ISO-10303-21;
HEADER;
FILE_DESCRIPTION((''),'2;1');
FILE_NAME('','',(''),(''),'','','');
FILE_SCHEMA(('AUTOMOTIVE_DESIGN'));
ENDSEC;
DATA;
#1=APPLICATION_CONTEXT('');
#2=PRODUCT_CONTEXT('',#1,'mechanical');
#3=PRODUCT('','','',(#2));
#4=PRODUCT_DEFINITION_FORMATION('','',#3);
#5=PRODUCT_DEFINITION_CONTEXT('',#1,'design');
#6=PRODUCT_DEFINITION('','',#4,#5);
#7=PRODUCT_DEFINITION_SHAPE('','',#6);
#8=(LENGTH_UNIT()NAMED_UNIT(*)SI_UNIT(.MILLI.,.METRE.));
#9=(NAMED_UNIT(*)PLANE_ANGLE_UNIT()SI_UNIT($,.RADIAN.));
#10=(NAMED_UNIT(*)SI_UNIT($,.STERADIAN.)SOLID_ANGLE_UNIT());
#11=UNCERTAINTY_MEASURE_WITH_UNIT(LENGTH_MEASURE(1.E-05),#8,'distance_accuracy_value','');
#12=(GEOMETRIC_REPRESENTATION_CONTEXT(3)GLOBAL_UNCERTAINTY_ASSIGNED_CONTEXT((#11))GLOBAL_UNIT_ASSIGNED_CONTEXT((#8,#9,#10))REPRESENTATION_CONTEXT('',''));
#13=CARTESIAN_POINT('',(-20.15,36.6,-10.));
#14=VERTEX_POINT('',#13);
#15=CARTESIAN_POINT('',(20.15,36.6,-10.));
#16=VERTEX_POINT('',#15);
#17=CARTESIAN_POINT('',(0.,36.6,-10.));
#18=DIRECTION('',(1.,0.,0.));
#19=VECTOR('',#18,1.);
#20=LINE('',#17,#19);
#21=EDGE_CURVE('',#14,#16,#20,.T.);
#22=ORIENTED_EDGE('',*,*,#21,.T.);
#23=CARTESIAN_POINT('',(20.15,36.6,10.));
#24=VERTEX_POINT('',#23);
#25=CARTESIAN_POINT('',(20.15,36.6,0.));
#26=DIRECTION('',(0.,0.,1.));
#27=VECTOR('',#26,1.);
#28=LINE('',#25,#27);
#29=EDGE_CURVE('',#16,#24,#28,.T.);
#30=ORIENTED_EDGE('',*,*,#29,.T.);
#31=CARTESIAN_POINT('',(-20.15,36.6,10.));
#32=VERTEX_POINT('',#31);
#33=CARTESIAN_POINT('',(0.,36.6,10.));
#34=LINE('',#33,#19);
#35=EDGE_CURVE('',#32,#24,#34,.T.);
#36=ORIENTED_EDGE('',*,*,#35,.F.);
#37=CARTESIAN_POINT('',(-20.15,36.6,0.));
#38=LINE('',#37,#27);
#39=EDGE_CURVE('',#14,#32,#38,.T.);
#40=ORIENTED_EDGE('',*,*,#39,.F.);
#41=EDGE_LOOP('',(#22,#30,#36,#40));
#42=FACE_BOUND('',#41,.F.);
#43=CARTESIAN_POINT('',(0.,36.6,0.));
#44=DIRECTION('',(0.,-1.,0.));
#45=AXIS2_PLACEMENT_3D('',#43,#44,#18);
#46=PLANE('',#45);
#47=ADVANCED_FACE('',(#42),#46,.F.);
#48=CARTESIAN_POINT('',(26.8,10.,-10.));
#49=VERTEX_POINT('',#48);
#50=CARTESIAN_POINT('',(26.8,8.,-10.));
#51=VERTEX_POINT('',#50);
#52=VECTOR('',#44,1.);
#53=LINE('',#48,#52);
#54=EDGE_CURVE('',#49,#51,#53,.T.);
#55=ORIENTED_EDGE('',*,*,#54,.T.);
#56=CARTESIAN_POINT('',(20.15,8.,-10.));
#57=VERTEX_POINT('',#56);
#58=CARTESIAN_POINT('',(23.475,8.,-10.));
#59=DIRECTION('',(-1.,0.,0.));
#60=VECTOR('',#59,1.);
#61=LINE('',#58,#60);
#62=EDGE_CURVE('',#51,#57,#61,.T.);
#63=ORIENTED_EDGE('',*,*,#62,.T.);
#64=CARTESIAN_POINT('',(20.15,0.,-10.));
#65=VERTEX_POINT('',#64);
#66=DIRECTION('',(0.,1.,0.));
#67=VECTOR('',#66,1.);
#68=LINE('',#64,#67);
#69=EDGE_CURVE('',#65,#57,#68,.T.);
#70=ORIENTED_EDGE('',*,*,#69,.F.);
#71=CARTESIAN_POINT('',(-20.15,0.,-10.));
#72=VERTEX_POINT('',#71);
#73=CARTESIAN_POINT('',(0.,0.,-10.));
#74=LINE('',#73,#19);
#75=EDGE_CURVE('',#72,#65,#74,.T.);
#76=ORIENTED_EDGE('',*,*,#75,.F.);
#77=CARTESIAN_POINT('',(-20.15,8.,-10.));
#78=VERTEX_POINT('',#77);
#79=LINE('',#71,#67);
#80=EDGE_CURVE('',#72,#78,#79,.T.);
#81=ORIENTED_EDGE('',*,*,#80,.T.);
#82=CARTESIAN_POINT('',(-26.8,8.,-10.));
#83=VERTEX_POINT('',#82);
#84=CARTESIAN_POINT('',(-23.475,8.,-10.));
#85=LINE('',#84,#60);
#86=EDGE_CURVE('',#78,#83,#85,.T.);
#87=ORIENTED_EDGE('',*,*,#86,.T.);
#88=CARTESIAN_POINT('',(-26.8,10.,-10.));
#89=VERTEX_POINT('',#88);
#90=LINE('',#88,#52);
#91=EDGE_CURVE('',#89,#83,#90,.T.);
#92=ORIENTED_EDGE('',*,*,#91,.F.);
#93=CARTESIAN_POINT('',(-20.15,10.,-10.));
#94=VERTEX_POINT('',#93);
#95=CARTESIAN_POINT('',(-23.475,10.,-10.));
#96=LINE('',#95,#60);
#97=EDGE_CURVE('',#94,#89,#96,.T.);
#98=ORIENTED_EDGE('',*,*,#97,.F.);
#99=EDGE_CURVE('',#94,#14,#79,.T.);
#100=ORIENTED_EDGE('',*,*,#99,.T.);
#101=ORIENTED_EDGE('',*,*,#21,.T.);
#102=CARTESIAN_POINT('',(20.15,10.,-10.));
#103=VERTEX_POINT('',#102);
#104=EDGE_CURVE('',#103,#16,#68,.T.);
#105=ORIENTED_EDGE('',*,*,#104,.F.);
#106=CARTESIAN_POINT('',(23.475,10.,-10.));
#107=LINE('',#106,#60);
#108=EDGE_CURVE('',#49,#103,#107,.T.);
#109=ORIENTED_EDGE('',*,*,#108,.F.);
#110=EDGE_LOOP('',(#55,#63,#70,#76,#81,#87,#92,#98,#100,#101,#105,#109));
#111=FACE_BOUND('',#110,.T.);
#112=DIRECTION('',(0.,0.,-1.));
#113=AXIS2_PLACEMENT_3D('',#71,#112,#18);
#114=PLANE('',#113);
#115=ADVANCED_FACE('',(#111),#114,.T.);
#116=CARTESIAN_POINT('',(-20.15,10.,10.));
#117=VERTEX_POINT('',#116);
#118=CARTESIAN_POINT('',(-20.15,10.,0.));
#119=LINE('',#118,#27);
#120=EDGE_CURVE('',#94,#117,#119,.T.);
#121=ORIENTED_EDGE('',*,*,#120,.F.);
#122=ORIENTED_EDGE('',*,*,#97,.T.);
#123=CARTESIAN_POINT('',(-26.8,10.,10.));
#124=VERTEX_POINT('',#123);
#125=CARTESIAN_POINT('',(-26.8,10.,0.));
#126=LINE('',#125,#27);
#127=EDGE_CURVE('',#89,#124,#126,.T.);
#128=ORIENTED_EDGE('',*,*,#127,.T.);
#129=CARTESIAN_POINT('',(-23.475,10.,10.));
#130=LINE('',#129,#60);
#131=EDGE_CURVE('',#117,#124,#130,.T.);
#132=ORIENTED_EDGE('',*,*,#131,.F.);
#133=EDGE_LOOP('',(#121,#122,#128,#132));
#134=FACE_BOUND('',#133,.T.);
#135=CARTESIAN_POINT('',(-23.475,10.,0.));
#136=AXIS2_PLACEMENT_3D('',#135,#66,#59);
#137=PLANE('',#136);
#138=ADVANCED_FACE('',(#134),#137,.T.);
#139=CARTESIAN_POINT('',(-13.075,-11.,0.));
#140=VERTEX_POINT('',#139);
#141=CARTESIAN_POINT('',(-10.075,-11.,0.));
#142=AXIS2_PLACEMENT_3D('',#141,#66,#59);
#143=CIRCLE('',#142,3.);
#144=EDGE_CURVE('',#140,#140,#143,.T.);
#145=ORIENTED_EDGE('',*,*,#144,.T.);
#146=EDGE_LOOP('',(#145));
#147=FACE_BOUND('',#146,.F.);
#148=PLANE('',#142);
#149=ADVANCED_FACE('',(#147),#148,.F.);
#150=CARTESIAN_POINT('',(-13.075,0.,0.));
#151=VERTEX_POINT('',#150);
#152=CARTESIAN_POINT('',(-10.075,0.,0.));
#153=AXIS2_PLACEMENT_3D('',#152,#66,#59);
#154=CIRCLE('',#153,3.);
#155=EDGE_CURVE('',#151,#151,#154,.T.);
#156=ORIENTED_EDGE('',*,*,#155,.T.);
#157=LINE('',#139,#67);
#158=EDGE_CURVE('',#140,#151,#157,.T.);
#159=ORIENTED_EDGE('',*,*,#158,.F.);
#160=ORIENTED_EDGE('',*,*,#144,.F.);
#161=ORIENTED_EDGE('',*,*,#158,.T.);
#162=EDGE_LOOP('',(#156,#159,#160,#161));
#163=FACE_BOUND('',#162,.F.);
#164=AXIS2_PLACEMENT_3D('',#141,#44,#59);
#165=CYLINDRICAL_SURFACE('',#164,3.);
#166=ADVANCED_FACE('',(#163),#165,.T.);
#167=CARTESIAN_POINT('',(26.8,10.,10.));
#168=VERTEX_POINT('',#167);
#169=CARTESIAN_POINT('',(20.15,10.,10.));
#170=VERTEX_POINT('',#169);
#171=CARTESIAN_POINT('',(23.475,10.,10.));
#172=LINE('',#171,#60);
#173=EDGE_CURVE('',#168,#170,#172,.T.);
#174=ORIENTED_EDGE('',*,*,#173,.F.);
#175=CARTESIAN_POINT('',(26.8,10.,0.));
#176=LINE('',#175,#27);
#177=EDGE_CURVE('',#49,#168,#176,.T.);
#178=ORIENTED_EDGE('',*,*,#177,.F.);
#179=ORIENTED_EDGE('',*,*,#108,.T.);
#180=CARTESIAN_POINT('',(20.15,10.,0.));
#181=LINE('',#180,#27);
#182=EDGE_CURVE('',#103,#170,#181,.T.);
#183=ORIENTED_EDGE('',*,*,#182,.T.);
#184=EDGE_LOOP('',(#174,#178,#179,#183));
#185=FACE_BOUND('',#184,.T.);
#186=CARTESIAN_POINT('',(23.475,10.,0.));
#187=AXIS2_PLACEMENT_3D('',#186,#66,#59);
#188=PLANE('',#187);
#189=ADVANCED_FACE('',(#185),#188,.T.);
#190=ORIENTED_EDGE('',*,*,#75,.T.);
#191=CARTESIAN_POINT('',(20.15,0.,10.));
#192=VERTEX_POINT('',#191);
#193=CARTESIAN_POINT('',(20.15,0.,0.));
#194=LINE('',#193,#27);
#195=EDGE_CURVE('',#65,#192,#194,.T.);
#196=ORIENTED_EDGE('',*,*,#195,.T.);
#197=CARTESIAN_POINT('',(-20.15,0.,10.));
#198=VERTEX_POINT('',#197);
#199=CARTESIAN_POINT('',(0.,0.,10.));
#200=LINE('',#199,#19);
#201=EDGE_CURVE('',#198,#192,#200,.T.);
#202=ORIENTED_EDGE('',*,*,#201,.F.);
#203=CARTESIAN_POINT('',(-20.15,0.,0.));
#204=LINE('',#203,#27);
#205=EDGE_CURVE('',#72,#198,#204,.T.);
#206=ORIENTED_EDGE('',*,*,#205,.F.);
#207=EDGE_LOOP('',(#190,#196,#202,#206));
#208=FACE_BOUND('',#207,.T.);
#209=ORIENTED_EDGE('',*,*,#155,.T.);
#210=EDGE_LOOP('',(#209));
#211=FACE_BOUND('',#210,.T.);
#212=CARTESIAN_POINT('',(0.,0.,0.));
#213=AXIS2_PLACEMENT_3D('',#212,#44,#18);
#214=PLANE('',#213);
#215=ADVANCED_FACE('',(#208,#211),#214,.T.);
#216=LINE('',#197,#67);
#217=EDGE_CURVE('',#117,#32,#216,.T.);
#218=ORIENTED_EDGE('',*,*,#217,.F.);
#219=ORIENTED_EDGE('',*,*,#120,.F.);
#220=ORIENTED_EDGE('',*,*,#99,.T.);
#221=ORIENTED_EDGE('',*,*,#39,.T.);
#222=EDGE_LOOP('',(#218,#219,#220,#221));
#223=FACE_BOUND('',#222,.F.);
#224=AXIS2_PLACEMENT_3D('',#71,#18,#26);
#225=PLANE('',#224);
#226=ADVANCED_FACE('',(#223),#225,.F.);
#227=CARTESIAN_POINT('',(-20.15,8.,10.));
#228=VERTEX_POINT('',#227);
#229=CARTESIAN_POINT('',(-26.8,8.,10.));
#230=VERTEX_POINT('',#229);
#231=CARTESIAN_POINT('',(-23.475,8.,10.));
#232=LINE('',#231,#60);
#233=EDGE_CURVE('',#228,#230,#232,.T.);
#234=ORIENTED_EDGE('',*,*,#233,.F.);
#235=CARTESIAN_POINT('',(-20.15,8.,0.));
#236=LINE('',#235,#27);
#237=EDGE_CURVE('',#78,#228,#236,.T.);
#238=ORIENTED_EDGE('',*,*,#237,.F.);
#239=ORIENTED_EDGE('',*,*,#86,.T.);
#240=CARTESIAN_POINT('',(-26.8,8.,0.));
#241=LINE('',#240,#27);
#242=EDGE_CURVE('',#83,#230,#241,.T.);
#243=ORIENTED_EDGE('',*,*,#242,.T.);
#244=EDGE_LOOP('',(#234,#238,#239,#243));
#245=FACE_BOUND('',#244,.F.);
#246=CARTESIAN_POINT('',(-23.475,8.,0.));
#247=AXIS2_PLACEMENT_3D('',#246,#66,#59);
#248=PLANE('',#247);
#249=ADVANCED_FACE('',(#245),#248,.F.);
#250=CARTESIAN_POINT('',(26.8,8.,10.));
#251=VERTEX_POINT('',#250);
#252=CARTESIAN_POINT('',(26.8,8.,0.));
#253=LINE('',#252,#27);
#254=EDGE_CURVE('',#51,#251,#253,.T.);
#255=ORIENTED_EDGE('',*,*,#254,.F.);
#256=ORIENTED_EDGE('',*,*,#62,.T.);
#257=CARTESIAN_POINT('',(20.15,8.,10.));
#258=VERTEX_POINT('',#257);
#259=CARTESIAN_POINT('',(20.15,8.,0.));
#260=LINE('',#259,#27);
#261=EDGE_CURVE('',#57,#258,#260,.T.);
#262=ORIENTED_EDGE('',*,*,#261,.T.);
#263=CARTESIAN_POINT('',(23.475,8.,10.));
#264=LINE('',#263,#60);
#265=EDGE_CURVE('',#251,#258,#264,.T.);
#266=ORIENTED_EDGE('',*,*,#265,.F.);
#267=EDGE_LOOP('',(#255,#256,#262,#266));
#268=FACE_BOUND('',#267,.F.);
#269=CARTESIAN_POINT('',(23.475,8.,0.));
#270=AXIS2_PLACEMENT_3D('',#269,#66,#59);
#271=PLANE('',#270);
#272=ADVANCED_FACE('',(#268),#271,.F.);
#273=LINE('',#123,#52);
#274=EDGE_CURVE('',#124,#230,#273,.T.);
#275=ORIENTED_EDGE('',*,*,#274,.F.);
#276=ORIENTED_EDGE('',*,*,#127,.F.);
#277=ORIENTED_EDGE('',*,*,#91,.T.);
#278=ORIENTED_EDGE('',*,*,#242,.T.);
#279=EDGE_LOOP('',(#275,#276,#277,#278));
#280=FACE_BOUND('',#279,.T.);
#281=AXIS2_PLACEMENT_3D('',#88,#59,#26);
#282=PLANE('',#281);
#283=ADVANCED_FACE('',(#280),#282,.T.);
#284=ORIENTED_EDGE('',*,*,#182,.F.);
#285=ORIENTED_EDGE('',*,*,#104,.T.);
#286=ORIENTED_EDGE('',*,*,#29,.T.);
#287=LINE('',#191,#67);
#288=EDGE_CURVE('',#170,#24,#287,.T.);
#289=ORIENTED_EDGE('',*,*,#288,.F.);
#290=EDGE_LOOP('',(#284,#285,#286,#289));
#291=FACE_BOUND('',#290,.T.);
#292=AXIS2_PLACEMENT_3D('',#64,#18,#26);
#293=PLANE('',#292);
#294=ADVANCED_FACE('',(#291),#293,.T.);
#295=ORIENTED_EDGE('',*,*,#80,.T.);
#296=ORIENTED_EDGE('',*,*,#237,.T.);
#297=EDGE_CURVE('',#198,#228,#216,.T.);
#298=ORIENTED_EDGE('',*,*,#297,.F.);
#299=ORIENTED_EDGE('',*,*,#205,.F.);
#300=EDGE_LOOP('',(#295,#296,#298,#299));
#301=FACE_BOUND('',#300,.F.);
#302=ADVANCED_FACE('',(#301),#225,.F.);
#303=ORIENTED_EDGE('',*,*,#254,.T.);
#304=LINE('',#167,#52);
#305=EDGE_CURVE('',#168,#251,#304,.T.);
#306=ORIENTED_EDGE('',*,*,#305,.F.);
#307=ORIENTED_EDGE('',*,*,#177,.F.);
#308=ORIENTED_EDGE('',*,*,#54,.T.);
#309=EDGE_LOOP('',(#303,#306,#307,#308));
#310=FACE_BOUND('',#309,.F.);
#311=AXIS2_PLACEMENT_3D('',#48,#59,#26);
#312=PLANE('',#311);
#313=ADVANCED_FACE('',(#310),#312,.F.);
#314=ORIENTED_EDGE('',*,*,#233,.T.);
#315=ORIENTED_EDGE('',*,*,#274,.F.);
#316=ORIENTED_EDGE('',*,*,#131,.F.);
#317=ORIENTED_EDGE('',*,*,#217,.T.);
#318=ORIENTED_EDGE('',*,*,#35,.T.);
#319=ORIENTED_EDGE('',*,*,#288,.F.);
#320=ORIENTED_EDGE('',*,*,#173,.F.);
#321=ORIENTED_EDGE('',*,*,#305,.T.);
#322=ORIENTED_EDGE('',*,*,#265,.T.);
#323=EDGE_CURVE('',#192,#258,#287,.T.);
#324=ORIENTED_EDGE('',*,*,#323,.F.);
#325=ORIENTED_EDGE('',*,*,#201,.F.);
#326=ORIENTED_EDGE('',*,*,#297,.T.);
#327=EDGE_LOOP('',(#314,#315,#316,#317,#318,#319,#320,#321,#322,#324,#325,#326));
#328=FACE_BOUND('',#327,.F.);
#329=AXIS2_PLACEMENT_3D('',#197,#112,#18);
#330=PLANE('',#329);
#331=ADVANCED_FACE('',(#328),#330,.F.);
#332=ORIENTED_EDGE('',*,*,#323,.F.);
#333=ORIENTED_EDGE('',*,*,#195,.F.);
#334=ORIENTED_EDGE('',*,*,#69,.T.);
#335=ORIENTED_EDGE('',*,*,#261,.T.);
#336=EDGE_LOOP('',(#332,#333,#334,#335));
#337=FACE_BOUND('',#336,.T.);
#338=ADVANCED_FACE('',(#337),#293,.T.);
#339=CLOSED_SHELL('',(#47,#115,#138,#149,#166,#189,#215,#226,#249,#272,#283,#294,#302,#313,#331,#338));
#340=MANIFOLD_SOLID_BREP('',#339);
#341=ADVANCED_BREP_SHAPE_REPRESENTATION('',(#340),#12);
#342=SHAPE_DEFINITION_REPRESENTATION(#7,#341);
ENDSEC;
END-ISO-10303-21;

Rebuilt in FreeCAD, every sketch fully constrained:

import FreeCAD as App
import Part
import Sketcher

V = App.Vector
Q = App.Units.Quantity


def add_polygon(sketch, points):
    """Adds a closed chain of lines whose ends are joined by coincident constraints."""
    first, n = sketch.GeometryCount, len(points)
    for a, b in zip(points, points[1:] + points[:1]):
        sketch.addGeometry(Part.LineSegment(App.Vector(*a, 0), App.Vector(*b, 0)), False)
    for i in range(n):
        sketch.addConstraint(Sketcher.Constraint("Coincident", first + i, 2, first + (i + 1) % n, 1))

doc = App.newDocument("Part")
body = doc.addObject("PartDesign::Body", "Body")

sketch1 = doc.addObject("Sketcher::SketchObject", "Sketch")
body.addObject(sketch1)
sketch1.AttachmentSupport = (doc.XZ_Plane, [""])
sketch1.MapMode = "FlatFace"
add_polygon(sketch1, [(-20, 10), (-20, -10), (20, -10), (20, 10)])
sketch1.addConstraint(Sketcher.Constraint("Vertical", 0))
sketch1.addConstraint(Sketcher.Constraint("Horizontal", 1))
sketch1.addConstraint(Sketcher.Constraint("Vertical", 2))
sketch1.addConstraint(Sketcher.Constraint("Horizontal", 3))
sketch1.addConstraint(Sketcher.Constraint("Symmetric", 0, 2, 2, 2, -1, 1))
sketch1.addConstraint(Sketcher.Constraint("DistanceY", 0, 2, 0, 1, Q("20 mm")))
sketch1.addConstraint(Sketcher.Constraint("DistanceX", 1, 1, 1, 2, Q("40.3 mm")))
pad1 = doc.addObject("PartDesign::Pad", "Pad")
body.addObject(pad1)
pad1.Profile = sketch1
pad1.Length = 36.6
pad1.Reversed = True

sketch2 = doc.addObject("Sketcher::SketchObject", "Sketch001")
body.addObject(sketch2)
sketch2.AttachmentSupport = (doc.XZ_Plane, [""])
sketch2.MapMode = "FlatFace"
sketch2.AttachmentOffset = App.Placement(V(0, 0, -10), App.Rotation())
add_polygon(sketch2, [(27, 10), (27, -10), (20, -10), (20, 10)])
add_polygon(sketch2, [(-20, 10), (-20, -10), (-27, -10), (-27, 10)])
sketch2.addConstraint(Sketcher.Constraint("Vertical", 0))
sketch2.addConstraint(Sketcher.Constraint("Horizontal", 1))
sketch2.addConstraint(Sketcher.Constraint("Vertical", 2))
sketch2.addConstraint(Sketcher.Constraint("Horizontal", 3))
sketch2.addConstraint(Sketcher.Constraint("Vertical", 4))
sketch2.addConstraint(Sketcher.Constraint("Horizontal", 5))
sketch2.addConstraint(Sketcher.Constraint("Vertical", 6))
sketch2.addConstraint(Sketcher.Constraint("Horizontal", 7))
sketch2.addConstraint(Sketcher.Constraint("Symmetric", 2, 2, 4, 2, -1, 1))
sketch2.addConstraint(Sketcher.Constraint("Symmetric", 0, 2, 6, 2, -1, 1))
sketch2.addConstraint(Sketcher.Constraint("Horizontal", 1, 2, 4, 2))
sketch2.addConstraint(Sketcher.Constraint("DistanceY", 0, 2, 0, 1, Q("20 mm")))
sketch2.addConstraint(Sketcher.Constraint("DistanceX", 1, 2, 1, 1, Q("6.65 mm")))
sketch2.addConstraint(Sketcher.Constraint("DistanceX", -1, 1, 0, 2, Q("26.8 mm")))
pad2 = doc.addObject("PartDesign::Pad", "Pad001")
body.addObject(pad2)
pad2.Profile = sketch2
pad2.Length = 2

sketch3 = doc.addObject("Sketcher::SketchObject", "Sketch002")
body.addObject(sketch3)
sketch3.AttachmentSupport = (doc.XZ_Plane, [""])
sketch3.MapMode = "FlatFace"
sketch3.AttachmentOffset = App.Placement(V(0, 0, 11), App.Rotation())
sketch3.addGeometry(Part.Circle(V(-10.1, 0, 0), V(0, 0, 1), 3), False)
sketch3.addConstraint(Sketcher.Constraint("PointOnObject", 0, 3, -1))
sketch3.addConstraint(Sketcher.Constraint("Diameter", 0, Q("6 mm")))
sketch3.addConstraint(Sketcher.Constraint("DistanceX", 0, 3, -1, 1, Q("10.075 mm")))
pad3 = doc.addObject("PartDesign::Pad", "Pad002")
body.addObject(pad3)
pad3.Profile = sketch3
pad3.Type = "UpToLast"
pad3.Reversed = True

doc.recompute()
